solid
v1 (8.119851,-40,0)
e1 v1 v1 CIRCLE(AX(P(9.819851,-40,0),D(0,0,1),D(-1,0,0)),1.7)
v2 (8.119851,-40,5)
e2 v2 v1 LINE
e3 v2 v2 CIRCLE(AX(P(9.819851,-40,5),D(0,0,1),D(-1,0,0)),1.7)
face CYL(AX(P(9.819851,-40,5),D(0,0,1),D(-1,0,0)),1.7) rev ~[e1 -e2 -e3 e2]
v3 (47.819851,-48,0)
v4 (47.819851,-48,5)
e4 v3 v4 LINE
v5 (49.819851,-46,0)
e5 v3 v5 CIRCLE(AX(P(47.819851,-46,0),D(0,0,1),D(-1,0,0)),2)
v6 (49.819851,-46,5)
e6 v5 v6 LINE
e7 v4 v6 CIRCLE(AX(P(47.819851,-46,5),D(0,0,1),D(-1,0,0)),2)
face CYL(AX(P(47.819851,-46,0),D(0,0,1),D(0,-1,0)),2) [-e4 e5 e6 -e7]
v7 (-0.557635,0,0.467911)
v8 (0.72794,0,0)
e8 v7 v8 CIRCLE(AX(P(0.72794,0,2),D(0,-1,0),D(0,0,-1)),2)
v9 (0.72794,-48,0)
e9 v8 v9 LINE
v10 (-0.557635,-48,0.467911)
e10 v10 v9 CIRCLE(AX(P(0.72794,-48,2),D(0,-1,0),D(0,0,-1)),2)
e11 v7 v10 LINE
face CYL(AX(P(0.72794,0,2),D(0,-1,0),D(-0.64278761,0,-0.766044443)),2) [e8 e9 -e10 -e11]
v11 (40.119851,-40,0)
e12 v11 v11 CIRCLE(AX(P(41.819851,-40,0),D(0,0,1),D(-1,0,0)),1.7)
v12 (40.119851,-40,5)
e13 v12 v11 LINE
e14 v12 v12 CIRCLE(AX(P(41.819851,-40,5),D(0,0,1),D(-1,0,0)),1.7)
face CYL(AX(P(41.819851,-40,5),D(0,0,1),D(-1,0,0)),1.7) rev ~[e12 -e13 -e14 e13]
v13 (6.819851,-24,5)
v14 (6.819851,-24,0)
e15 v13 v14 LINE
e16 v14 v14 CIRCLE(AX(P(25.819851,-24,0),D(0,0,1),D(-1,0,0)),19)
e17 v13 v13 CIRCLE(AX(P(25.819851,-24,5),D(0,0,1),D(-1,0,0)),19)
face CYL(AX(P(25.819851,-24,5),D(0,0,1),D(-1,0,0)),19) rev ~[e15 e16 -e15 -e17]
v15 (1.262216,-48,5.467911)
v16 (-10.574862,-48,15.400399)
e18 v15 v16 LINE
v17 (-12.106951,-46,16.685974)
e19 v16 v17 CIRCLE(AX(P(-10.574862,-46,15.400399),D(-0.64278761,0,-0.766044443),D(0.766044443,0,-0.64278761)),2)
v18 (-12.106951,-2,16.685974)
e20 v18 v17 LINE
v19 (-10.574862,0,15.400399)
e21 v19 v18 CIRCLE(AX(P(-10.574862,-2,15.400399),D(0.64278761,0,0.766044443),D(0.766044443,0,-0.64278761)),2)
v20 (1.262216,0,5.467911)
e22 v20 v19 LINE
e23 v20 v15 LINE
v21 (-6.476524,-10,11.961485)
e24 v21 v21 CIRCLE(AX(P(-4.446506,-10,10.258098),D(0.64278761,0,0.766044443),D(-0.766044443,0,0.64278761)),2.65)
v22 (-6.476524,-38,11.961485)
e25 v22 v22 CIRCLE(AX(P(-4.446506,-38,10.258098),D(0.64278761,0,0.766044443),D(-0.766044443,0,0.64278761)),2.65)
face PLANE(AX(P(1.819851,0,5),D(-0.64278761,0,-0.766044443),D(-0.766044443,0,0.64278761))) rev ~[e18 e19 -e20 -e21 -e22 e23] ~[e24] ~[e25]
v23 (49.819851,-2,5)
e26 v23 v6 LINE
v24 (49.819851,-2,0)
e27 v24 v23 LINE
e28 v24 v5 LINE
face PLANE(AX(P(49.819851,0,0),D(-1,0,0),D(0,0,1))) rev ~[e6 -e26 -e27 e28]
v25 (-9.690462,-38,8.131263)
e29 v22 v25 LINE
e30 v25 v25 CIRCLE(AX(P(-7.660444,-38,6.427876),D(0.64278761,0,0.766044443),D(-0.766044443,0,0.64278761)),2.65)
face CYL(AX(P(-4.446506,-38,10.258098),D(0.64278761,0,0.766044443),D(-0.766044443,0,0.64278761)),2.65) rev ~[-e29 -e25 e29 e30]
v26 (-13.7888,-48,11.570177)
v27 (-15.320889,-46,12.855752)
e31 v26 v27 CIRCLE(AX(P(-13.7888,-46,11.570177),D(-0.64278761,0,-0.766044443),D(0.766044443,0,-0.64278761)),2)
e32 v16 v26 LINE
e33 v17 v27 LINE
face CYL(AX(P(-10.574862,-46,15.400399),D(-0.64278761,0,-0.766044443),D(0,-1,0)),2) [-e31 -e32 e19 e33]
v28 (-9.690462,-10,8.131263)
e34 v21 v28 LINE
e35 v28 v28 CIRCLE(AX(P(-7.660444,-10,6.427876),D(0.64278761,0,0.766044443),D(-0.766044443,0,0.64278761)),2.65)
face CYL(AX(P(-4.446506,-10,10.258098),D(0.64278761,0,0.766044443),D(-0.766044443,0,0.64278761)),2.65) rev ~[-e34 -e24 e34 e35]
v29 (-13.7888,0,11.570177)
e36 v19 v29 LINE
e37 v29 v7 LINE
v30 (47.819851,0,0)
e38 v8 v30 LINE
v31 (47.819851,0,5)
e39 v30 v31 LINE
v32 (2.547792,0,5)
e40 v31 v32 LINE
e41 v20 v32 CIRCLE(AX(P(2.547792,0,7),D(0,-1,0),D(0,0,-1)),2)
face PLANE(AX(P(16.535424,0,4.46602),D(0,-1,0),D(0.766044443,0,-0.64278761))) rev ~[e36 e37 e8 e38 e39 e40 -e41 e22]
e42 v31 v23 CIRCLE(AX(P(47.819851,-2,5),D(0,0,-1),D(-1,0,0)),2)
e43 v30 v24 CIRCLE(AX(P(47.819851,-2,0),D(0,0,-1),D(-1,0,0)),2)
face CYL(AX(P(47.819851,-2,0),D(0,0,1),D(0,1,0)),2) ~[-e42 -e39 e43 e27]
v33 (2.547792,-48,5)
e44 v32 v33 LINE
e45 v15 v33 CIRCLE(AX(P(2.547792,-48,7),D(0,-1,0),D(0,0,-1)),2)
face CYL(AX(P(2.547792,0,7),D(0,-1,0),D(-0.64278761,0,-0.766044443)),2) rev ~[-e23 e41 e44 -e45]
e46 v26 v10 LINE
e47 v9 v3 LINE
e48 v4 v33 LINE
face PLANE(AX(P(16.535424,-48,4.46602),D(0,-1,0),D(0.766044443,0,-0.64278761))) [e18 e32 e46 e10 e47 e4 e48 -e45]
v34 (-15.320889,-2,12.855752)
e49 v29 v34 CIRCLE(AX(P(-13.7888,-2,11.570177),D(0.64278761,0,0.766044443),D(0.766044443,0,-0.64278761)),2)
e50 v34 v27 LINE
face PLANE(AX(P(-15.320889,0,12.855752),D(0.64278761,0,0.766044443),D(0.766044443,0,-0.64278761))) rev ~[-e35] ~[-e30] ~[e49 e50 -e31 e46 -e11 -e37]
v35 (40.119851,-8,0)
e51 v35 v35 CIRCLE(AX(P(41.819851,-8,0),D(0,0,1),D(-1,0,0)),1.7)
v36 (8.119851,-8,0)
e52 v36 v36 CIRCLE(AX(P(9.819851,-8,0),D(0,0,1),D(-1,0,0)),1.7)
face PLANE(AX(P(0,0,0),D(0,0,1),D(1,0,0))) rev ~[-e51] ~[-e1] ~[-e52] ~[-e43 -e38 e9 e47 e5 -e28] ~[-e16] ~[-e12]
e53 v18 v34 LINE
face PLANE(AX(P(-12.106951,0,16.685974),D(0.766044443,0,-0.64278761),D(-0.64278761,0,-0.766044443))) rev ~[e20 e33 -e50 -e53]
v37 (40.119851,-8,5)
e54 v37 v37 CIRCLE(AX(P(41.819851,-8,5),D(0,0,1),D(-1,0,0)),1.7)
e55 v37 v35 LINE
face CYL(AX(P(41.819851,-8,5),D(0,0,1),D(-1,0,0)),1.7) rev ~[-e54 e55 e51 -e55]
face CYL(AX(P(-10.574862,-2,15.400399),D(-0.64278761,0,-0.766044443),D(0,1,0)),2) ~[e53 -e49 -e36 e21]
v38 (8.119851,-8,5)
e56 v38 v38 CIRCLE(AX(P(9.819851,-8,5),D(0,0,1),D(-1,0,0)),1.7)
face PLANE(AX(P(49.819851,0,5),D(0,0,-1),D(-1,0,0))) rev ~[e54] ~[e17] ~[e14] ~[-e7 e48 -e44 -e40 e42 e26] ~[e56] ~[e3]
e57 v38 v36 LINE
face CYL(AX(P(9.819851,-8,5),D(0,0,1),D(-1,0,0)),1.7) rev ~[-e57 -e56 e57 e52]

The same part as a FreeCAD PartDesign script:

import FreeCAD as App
import Part
import Sketcher
from FreeCAD import Vector
Q = App.Units.Quantity


def edges_at(feature, points):
    """Names of the edges that pass closest to the given points."""
    edges = feature.Shape.Edges
    near = lambda p: min(range(len(edges)), key=lambda i: edges[i].distToShape(Part.Vertex(*p))[0])
    return sorted({f"Edge{near(p) + 1}" for p in points})


def add_polygon(sketch, points):
    """Adds a closed chain of lines whose ends are joined by coincident constraints."""
    first, n = sketch.GeometryCount, len(points)
    for a, b in zip(points, points[1:] + points[:1]):
        sketch.addGeometry(Part.LineSegment(App.Vector(*a, 0), App.Vector(*b, 0)), False)
    for i in range(n):
        sketch.addConstraint(Sketcher.Constraint("Coincident", first + i, 2, first + (i + 1) % n, 1))

doc = App.newDocument("Part")
body = doc.addObject("PartDesign::Body", "Body")

# Sketch on XY plane
sketch1 = body.newObject("Sketcher::SketchObject", "Sketch")
sketch1.AttachmentSupport = (doc.getObject("XY_Plane"), [""])
sketch1.MapMode = "FlatFace"
add_polygon(sketch1, [(-2, 5), (-20, 5), (-20, 0), (0, 0), (38, 32), (35, 36)])  # lines 0-5
sketch1.addConstraint([
    Sketcher.Constraint("Horizontal", 0),
    Sketcher.Constraint("Vertical", 1),
    Sketcher.Constraint("Horizontal", 2),
    Sketcher.Constraint("Coincident", 2, 2, -1, 1),
    Sketcher.Constraint("Perpendicular", 3, 4),
    Sketcher.Constraint("Perpendicular", 4, 5),
    Sketcher.Constraint("DistanceX", 2, 1, 2, 2, Q("20 mm")),
    Sketcher.Constraint("DistanceY", 1, 2, 1, 1, Q("5 mm")),
    Sketcher.Constraint("Angle", 3, Q("40 deg")),
    Sketcher.Constraint("Distance", 4, Q("5 mm")),
    Sketcher.Constraint("Distance", 5, Q("48 mm")),
])
pad1 = body.newObject("PartDesign::Pad", "Pad")
pad1.Profile = sketch1
pad1.Length = 48

# Sketch on XZ plane
sketch2 = body.newObject("Sketcher::SketchObject", "Sketch001")
sketch2.AttachmentSupport = (doc.getObject("XZ_Plane"), [""])
sketch2.MapMode = "FlatFace"
sketch2.AttachmentOffset = App.Placement(Vector(0, 0, -5), App.Rotation())
sketch2.addGeometry([
    Part.Circle(Vector(-10, 10, 0), Vector(0, 0, 1), 2.6),
    Part.Circle(Vector(-10, 38, 0), Vector(0, 0, 1), 2.6),
], False)
sketch2.addConstraint([
    Sketcher.Constraint("Equal", 0, 1),
    Sketcher.Constraint("Vertical", 0, 3, 1, 3),
    Sketcher.Constraint("Diameter", 0, Q("5.3 mm")),
    Sketcher.Constraint("DistanceX", 0, 3, -1, 1, Q("10 mm")),
    Sketcher.Constraint("DistanceY", -1, 1, 0, 3, Q("10 mm")),
    Sketcher.Constraint("DistanceY", -1, 1, 1, 3, Q("38 mm")),
])
pocket1 = body.newObject("PartDesign::Pocket", "Pocket")
pocket1.Profile = sketch2
pocket1.Type = "ThroughAll"
pocket1.Reversed = True

# Sketch on an angled plane
sketch3 = body.newObject("Sketcher::SketchObject", "Sketch002")
sketch3.Placement = App.Placement(Vector(-3.213938, 3.830222, 0), App.Rotation(Vector(-0.766044443, -0.64278761, 0), Vector(0, 0, 1), Vector(-0.64278761, 0.766044443, 0), "ZXY"))
sketch3.addGeometry([
    Part.Circle(Vector(-25.8, 24, 0), Vector(0, 0, 1), 19),  # 0
    Part.Circle(Vector(-9.8, 40, 0), Vector(0, 0, 1), 1.7),  # 1
    Part.Circle(Vector(-9.8, 8, 0), Vector(0, 0, 1), 1.7),  # 2
    Part.Circle(Vector(-41.8, 8, 0), Vector(0, 0, 1), 1.7),  # 3
    Part.Circle(Vector(-41.8, 40, 0), Vector(0, 0, 1), 1.7),  # 4
], False)
sketch3.addConstraint([
    Sketcher.Constraint("Equal", 1, 2),
    Sketcher.Constraint("Equal", 2, 3),
    Sketcher.Constraint("Equal", 3, 4),
    Sketcher.Constraint("Horizontal", 2, 3, 3, 3),
    Sketcher.Constraint("Horizontal", 1, 3, 4, 3),
    Sketcher.Constraint("Vertical", 1, 3, 2, 3),
    Sketcher.Constraint("Vertical", 3, 3, 4, 3),
    Sketcher.Constraint("Diameter", 0, Q("38 mm")),
    Sketcher.Constraint("Diameter", 1, Q("3.4 mm")),
    Sketcher.Constraint("DistanceY", -1, 1, 0, 3, Q("24 mm")),
    Sketcher.Constraint("DistanceY", -1, 1, 1, 3, Q("40 mm")),
    Sketcher.Constraint("DistanceY", -1, 1, 2, 3, Q("8 mm")),
    Sketcher.Constraint("DistanceX", 0, 3, 1, 3, Q("16 mm")),
    Sketcher.Constraint("DistanceX", 3, 3, 0, 3, Q("16 mm")),
    Sketcher.Constraint("DistanceX", 0, 3, -1, 1, Q("25.819851 mm")),
])
pocket2 = body.newObject("PartDesign::Pocket", "Pocket001")
pocket2.Profile = sketch3
pocket2.Type = "ThroughAll"
body2 = doc.addObject("PartDesign::Body", "Body001")
doc.recompute()

body.Placement = App.Placement(Vector(0, 0, 0), App.Rotation(Vector(0, 0, -1), 40))
boolean = body2.newObject("PartDesign::Boolean", "Boolean")
boolean.Type = "Fuse"
boolean.addObjects([body])
body3 = doc.addObject("PartDesign::Body", "Body002")
doc.recompute()

body2.Placement = App.Placement(Vector(0, 0, 0), App.Rotation(Vector(1, 0, 0), 90))
boolean2 = body3.newObject("PartDesign::Boolean", "Boolean001")
boolean2.Type = "Fuse"
boolean2.addObjects([body2])
doc.recompute()

fillet = body3.newObject("PartDesign::Fillet", "Fillet")
fillet.Base = (boolean2, edges_at(boolean2, [
    (1.82, -24, 5),
    (0, -24, 0),
    (-13.714, 0, 14.771),
    (-13.714, -48, 14.771),
    (49.82, 0, 2.5),
    (49.82, -48, 2.5),
]))
fillet.Radius = 2

doc.recompute()
